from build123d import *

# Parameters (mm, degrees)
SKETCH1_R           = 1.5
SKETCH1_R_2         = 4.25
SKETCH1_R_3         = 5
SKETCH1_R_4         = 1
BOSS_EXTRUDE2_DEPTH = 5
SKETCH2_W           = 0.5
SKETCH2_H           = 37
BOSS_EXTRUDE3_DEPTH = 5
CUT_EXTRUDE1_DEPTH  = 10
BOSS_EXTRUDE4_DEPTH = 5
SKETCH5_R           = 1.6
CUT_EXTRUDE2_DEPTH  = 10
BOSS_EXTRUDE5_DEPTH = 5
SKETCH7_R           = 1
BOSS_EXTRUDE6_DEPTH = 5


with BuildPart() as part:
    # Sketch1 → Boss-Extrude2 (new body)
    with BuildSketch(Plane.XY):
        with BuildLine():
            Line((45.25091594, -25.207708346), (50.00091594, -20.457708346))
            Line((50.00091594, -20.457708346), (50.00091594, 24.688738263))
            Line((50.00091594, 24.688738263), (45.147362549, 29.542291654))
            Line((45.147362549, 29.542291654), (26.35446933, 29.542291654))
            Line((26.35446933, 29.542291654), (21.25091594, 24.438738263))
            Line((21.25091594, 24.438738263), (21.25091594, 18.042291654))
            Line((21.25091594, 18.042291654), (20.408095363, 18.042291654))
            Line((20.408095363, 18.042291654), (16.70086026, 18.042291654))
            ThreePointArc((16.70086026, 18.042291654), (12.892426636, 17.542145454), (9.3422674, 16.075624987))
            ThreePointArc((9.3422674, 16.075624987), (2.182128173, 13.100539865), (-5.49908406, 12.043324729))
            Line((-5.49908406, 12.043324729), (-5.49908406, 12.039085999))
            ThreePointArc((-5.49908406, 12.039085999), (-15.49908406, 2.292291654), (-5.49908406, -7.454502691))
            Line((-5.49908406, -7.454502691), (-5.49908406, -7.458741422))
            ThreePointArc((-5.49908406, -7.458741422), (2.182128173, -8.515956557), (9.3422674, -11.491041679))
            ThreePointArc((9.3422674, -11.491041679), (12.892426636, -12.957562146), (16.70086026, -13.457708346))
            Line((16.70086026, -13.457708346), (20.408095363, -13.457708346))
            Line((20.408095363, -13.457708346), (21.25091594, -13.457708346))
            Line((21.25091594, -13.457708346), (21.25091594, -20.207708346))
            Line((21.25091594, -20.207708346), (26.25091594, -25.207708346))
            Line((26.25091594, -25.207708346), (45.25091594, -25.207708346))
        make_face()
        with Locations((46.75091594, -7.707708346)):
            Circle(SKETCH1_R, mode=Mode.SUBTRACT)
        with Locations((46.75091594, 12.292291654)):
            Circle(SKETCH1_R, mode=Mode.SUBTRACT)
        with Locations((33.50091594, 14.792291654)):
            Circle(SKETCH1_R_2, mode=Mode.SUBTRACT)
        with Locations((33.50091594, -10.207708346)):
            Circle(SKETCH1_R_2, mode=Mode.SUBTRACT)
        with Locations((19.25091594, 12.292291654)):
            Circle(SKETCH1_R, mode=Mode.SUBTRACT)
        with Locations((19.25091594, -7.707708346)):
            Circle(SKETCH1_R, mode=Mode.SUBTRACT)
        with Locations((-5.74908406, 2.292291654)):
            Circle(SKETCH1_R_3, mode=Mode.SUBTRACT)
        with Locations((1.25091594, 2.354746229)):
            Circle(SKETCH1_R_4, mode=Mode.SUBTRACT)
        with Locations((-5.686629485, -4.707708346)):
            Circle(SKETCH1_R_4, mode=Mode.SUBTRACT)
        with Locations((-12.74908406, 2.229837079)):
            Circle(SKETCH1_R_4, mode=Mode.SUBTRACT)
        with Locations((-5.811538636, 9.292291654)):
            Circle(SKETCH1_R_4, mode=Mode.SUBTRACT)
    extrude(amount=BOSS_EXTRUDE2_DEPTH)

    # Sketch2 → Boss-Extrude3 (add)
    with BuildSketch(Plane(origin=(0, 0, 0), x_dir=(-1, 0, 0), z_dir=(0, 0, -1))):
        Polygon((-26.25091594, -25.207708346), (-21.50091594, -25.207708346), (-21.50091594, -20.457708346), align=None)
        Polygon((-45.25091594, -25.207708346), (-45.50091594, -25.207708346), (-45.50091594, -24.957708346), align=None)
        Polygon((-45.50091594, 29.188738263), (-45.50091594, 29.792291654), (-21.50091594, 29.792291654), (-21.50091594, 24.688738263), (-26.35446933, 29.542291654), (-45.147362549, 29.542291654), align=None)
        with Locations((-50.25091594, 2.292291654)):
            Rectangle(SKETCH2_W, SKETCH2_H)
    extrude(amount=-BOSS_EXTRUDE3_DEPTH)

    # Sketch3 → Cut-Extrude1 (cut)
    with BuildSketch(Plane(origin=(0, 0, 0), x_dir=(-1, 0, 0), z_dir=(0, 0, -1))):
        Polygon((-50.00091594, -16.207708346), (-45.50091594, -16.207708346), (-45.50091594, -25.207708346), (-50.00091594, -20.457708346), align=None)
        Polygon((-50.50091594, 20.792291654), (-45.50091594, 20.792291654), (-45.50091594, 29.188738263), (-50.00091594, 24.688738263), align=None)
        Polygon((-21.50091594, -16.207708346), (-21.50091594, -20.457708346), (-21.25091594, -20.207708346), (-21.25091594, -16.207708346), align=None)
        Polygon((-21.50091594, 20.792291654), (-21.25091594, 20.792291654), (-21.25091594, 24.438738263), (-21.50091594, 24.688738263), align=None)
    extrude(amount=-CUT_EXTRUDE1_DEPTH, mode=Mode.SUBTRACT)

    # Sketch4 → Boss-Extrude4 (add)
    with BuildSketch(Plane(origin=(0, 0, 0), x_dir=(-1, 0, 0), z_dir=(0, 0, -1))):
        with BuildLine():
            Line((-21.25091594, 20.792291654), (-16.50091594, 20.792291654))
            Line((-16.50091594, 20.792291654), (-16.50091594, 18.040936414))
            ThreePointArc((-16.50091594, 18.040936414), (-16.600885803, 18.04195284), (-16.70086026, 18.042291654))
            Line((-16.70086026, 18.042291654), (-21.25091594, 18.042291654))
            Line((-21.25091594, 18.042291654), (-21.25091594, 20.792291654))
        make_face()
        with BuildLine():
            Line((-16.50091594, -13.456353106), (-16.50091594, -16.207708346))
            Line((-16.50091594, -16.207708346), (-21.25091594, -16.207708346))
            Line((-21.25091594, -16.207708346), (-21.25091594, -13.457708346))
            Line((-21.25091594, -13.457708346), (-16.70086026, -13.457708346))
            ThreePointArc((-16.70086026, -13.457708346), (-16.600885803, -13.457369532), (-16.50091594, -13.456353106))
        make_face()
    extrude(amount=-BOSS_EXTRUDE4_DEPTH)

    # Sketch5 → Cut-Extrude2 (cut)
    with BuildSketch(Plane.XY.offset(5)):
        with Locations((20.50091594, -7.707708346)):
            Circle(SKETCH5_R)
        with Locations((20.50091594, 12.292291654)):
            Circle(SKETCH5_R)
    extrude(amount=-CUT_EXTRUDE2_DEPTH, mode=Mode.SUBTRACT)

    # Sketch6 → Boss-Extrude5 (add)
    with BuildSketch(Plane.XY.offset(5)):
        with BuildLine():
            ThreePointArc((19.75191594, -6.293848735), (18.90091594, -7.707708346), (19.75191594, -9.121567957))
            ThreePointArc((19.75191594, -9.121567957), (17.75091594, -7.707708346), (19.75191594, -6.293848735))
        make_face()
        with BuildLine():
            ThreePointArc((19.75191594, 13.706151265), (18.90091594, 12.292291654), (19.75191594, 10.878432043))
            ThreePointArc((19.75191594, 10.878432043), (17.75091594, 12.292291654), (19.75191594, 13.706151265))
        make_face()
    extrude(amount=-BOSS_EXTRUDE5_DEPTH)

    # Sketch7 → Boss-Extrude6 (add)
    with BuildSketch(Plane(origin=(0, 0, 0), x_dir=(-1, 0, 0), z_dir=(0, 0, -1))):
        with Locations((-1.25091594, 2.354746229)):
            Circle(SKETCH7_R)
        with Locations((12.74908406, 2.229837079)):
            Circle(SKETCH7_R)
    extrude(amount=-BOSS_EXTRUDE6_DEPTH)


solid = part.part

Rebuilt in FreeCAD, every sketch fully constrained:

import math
import FreeCAD as App
import Part
import Sketcher
from FreeCAD import Vector
Q = App.Units.Quantity


def add_polygon(sketch, points):
    """Adds a closed chain of lines whose ends are joined by coincident constraints."""
    first, n = sketch.GeometryCount, len(points)
    for a, b in zip(points, points[1:] + points[:1]):
        sketch.addGeometry(Part.LineSegment(App.Vector(*a, 0), App.Vector(*b, 0)), False)
    for i in range(n):
        sketch.addConstraint(Sketcher.Constraint("Coincident", first + i, 2, first + (i + 1) % n, 1))

doc = App.newDocument("Part")
body = doc.addObject("PartDesign::Body", "Body")

sketch1 = doc.addObject("Sketcher::SketchObject", "Sketch")
body.addObject(sketch1)
sketch1.AttachmentSupport = (doc.XY_Plane, [""])
sketch1.MapMode = "FlatFace"
sketch1.addGeometry(Part.LineSegment(Vector(45.250916, -25.207708, 0), Vector(50.000916, -20.457708, 0)), False)
sketch1.addGeometry(Part.LineSegment(Vector(50.000916, -20.457708, 0), Vector(50.000916, 24.688738, 0)), False)
sketch1.addGeometry(Part.LineSegment(Vector(50.000916, 24.688738, 0), Vector(45.147363, 29.542292, 0)), False)
sketch1.addGeometry(Part.LineSegment(Vector(45.147363, 29.542292, 0), Vector(26.354469, 29.542292, 0)), False)
sketch1.addGeometry(Part.LineSegment(Vector(26.354469, 29.542292, 0), Vector(21.250916, 24.438738, 0)), False)
sketch1.addGeometry(Part.LineSegment(Vector(21.250916, 24.438738, 0), Vector(21.250916, 18.042292, 0)), False)
sketch1.addGeometry(Part.LineSegment(Vector(21.250916, 18.042292, 0), Vector(16.70086, 18.042292, 0)), False)
sketch1.addGeometry(Part.ArcOfCircle(Part.Circle(Vector(16.70086, 3.292292, 0), Vector(0, 0, 1), 14.75), math.radians(90), math.radians(119.926435)), False)
sketch1.addGeometry(Part.ArcOfCircle(Part.Circle(Vector(-5.749084, 42.292292, 0), Vector(0, 0, 1), 30.25), math.radians(-89.526476), math.radians(-60.073565)), False)
sketch1.addGeometry(Part.LineSegment(Vector(-5.499084, 12.043325, 0), Vector(-5.499084, 12.039086, 0)), False)
sketch1.addGeometry(Part.ArcOfCircle(Part.Circle(Vector(-5.749084, 2.292292, 0), Vector(0, 0, 1), 9.75), math.radians(88.530716), math.radians(271.469284)), False)
sketch1.addGeometry(Part.LineSegment(Vector(-5.499084, -7.454503, 0), Vector(-5.499084, -7.458741, 0)), False)
sketch1.addGeometry(Part.ArcOfCircle(Part.Circle(Vector(-5.749084, -37.707708, 0), Vector(0, 0, 1), 30.25), math.radians(60.073565), math.radians(89.526476)), False)
sketch1.addGeometry(Part.ArcOfCircle(Part.Circle(Vector(16.70086, 1.292292, 0), Vector(0, 0, 1), 14.75), math.radians(-119.926435), math.radians(-90)), False)
sketch1.addGeometry(Part.LineSegment(Vector(16.70086, -13.457708, 0), Vector(21.250916, -13.457708, 0)), False)
sketch1.addGeometry(Part.LineSegment(Vector(21.250916, -13.457708, 0), Vector(21.250916, -20.207708, 0)), False)
sketch1.addGeometry(Part.LineSegment(Vector(21.250916, -20.207708, 0), Vector(26.250916, -25.207708, 0)), False)
sketch1.addGeometry(Part.LineSegment(Vector(26.250916, -25.207708, 0), Vector(45.250916, -25.207708, 0)), False)
sketch1.addGeometry(Part.Circle(Vector(-5.686629, -4.707708, 0), Vector(0, 0, 1), 1), False)
sketch1.addGeometry(Part.Circle(Vector(-12.749084, 2.229837, 0), Vector(0, 0, 1), 1), False)
sketch1.addGeometry(Part.Circle(Vector(19.250916, -7.707708, 0), Vector(0, 0, 1), 1.5), False)
sketch1.addGeometry(Part.Circle(Vector(33.500916, -10.207708, 0), Vector(0, 0, 1), 4.25), False)
sketch1.addGeometry(Part.Circle(Vector(46.750916, -7.707708, 0), Vector(0, 0, 1), 1.5), False)
sketch1.addGeometry(Part.Circle(Vector(-5.749084, 2.292292, 0), Vector(0, 0, 1), 5), False)
sketch1.addGeometry(Part.Circle(Vector(1.250916, 2.354746, 0), Vector(0, 0, 1), 1), False)
sketch1.addGeometry(Part.Circle(Vector(-5.811539, 9.292292, 0), Vector(0, 0, 1), 1), False)
sketch1.addGeometry(Part.Circle(Vector(19.250916, 12.292292, 0), Vector(0, 0, 1), 1.5), False)
sketch1.addGeometry(Part.Circle(Vector(33.500916, 14.792292, 0), Vector(0, 0, 1), 4.25), False)
sketch1.addGeometry(Part.Circle(Vector(46.750916, 12.292292, 0), Vector(0, 0, 1), 1.5), False)
sketch1.addConstraint(Sketcher.Constraint("Coincident", 0, 2, 1, 1))
sketch1.addConstraint(Sketcher.Constraint("Coincident", 1, 2, 2, 1))
sketch1.addConstraint(Sketcher.Constraint("Coincident", 2, 2, 3, 1))
sketch1.addConstraint(Sketcher.Constraint("Coincident", 3, 2, 4, 1))
sketch1.addConstraint(Sketcher.Constraint("Coincident", 4, 2, 5, 1))
sketch1.addConstraint(Sketcher.Constraint("Coincident", 5, 2, 6, 1))
sketch1.addConstraint(Sketcher.Constraint("Tangent", 6, 2, 7, 1))
sketch1.addConstraint(Sketcher.Constraint("Tangent", 7, 2, 8, 2))
sketch1.addConstraint(Sketcher.Constraint("Coincident", 8, 1, 9, 1))
sketch1.addConstraint(Sketcher.Constraint("Coincident", 9, 2, 10, 1))
sketch1.addConstraint(Sketcher.Constraint("Coincident", 10, 2, 11, 1))
sketch1.addConstraint(Sketcher.Constraint("Coincident", 11, 2, 12, 2))
sketch1.addConstraint(Sketcher.Constraint("Tangent", 12, 1, 13, 1))
sketch1.addConstraint(Sketcher.Constraint("Tangent", 13, 2, 14, 1))
sketch1.addConstraint(Sketcher.Constraint("Coincident", 14, 2, 15, 1))
sketch1.addConstraint(Sketcher.Constraint("Coincident", 15, 2, 16, 1))
sketch1.addConstraint(Sketcher.Constraint("Coincident", 16, 2, 17, 1))
sketch1.addConstraint(Sketcher.Constraint("Coincident", 17, 2, 0, 1))
sketch1.addConstraint(Sketcher.Constraint("Vertical", 1))
sketch1.addConstraint(Sketcher.Constraint("Horizontal", 3))
sketch1.addConstraint(Sketcher.Constraint("Vertical", 5))
sketch1.addConstraint(Sketcher.Constraint("Horizontal", 6))
sketch1.addConstraint(Sketcher.Constraint("Vertical", 9))
sketch1.addConstraint(Sketcher.Constraint("Vertical", 11))
sketch1.addConstraint(Sketcher.Constraint("Horizontal", 14))
sketch1.addConstraint(Sketcher.Constraint("Vertical", 15))
sketch1.addConstraint(Sketcher.Constraint("Horizontal", 17))
sketch1.addConstraint(Sketcher.Constraint("Coincident", 23, 3, 10, 3))
sketch1.addConstraint(Sketcher.Constraint("Equal", 8, 12))
sketch1.addConstraint(Sketcher.Constraint("Equal", 7, 13))
sketch1.addConstraint(Sketcher.Constraint("Equal", 18, 19))
sketch1.addConstraint(Sketcher.Constraint("Equal", 20, 22))
sketch1.addConstraint(Sketcher.Constraint("Equal", 19, 24))
sketch1.addConstraint(Sketcher.Constraint("Equal", 24, 25))
sketch1.addConstraint(Sketcher.Constraint("Equal", 22, 26))
sketch1.addConstraint(Sketcher.Constraint("Equal", 21, 27))
sketch1.addConstraint(Sketcher.Constraint("Equal", 26, 28))
sketch1.addConstraint(Sketcher.Constraint("Perpendicular", 0, 2))
sketch1.addConstraint(Sketcher.Constraint("Perpendicular", 2, 4))
sketch1.addConstraint(Sketcher.Constraint("Perpendicular", 4, 16))
sketch1.addConstraint(Sketcher.Constraint("Horizontal", 20, 3, 22, 3))
sketch1.addConstraint(Sketcher.Constraint("Horizontal", 26, 3, 28, 3))
sketch1.addConstraint(Sketcher.Constraint("Vertical", 8, 3, 10, 3))
sketch1.addConstraint(Sketcher.Constraint("Vertical", 10, 3, 12, 3))
sketch1.addConstraint(Sketcher.Constraint("Vertical", 7, 3, 13, 3))
sketch1.addConstraint(Sketcher.Constraint("Vertical", 20, 3, 26, 3))
sketch1.addConstraint(Sketcher.Constraint("Vertical", 21, 3, 27, 3))
sketch1.addConstraint(Sketcher.Constraint("Vertical", 22, 3, 28, 3))
sketch1.addConstraint(Sketcher.Constraint("Vertical", 9, 2, 10, 2))
sketch1.addConstraint(Sketcher.Constraint("Vertical", 5, 2, 14, 2))
sketch1.addConstraint(Sketcher.Constraint("Equal", 9, 11))
sketch1.addConstraint(Sketcher.Constraint("Diameter", 18, 2.0))
sketch1.addConstraint(Sketcher.Constraint("Diameter", 20, 3.0))
sketch1.addConstraint(Sketcher.Constraint("Diameter", 23, 10.0))
sketch1.addConstraint(Sketcher.Constraint("Diameter", 21, 8.5))
sketch1.addConstraint(Sketcher.Constraint("DistanceX", 17, 1, 17, 2, 19.0))
sketch1.addConstraint(Sketcher.Constraint("Angle", 0, Q("45 deg")))
sketch1.addConstraint(Sketcher.Constraint("Radius", 7, 14.75))
sketch1.addConstraint(Sketcher.Constraint("Radius", 8, 30.25))
sketch1.addConstraint(Sketcher.Constraint("Radius", 10, 9.75))
sketch1.addConstraint(Sketcher.Constraint("DistanceY", 7, 3, 8, 3, 39.0))
sketch1.addConstraint(Sketcher.Constraint("DistanceY", 10, 3, 7, 3, 1.0))
sketch1.addConstraint(Sketcher.Constraint("DistanceY", 18, 3, 10, 3, 7.0))
sketch1.addConstraint(Sketcher.Constraint("DistanceX", 19, 3, 10, 3, 7.0))
sketch1.addConstraint(Sketcher.Constraint("DistanceY", 20, 3, 13, 3, 9.0))
sketch1.addConstraint(Sketcher.Constraint("DistanceX", 10, 3, 20, 3, 25.0))
sketch1.addConstraint(Sketcher.Constraint("DistanceX", 10, 3, 24, 3, 7.0))
sketch1.addConstraint(Sketcher.Constraint("DistanceY", 10, 3, 25, 3, 7.0))
sketch1.addConstraint(Sketcher.Constraint("DistanceY", 7, 3, 26, 3, 9.0))
sketch1.addConstraint(Sketcher.Constraint("DistanceY", 21, 3, 27, 3, 25.0))
sketch1.addConstraint(Sketcher.Constraint("DistanceX", 26, 3, 4, 2, 2.0))
sketch1.addConstraint(Sketcher.Constraint("DistanceY", 15, 2, 21, 3, 10.0))
sketch1.addConstraint(Sketcher.Constraint("DistanceX", 15, 2, 16, 2, 5.0))
sketch1.addConstraint(Sketcher.Constraint("DistanceY", 15, 2, 15, 1, 6.75))
sketch1.addConstraint(Sketcher.Constraint("DistanceX", 20, 3, 22, 3, 27.5))
sketch1.addConstraint(Sketcher.Constraint("DistanceX", 21, 3, 0, 2, 16.5))
sketch1.addConstraint(Sketcher.Constraint("DistanceY", 5, 2, 3, 2, 11.5))
sketch1.addConstraint(Sketcher.Constraint("DistanceX", 20, 3, 21, 3, 14.25))
sketch1.addConstraint(Sketcher.Constraint("DistanceX", 10, 3, 8, 1, 0.25))
sketch1.addConstraint(Sketcher.Constraint("Distance", 2, 6.863961))
sketch1.addConstraint(Sketcher.Constraint("DistanceX", 3, 2, 3, 1, 18.792893))
sketch1.addConstraint(Sketcher.Constraint("DistanceX", -1, 1, 7, 3, 16.70086))
sketch1.addConstraint(Sketcher.Constraint("DistanceY", -1, 1, 7, 3, 3.292292))
sketch1.addConstraint(Sketcher.Constraint("DistanceX", 18, 3, -1, 1, 5.686629))
sketch1.addConstraint(Sketcher.Constraint("DistanceX", 25, 3, -1, 1, 5.811539))
sketch1.addConstraint(Sketcher.Constraint("DistanceY", 19, 3, 24, 3, 0.124909))
sketch1.addConstraint(Sketcher.Constraint("DistanceY", 24, 3, 8, 1, 9.688579))
pad1 = doc.addObject("PartDesign::Pad", "Pad")
body.addObject(pad1)
pad1.Profile = sketch1
pad1.Length = 5

sketch2 = doc.addObject("Sketcher::SketchObject", "Sketch001")
body.addObject(sketch2)
sketch2.AttachmentSupport = (doc.XY_Plane, [""])
sketch2.MapMode = "FlatFace"
add_polygon(sketch2, [(26.250916, -25.207708), (21.500916, -25.207708), (21.500916, -20.457708)])
add_polygon(sketch2, [(45.500916, -25.207708), (45.250916, -25.207708), (45.500916, -24.957708)])
add_polygon(sketch2, [(45.500916, 29.792292), (45.500916, 29.188738), (45.147363, 29.542292), (26.354469, 29.542292), (21.500916, 24.688738), (21.500916, 29.792292)])
add_polygon(sketch2, [(50.500916, 20.792292), (50.500916, -16.207708), (50.000916, -16.207708), (50.000916, 20.792292)])
sketch2.addConstraint(Sketcher.Constraint("Horizontal", 0))
sketch2.addConstraint(Sketcher.Constraint("Vertical", 1))
sketch2.addConstraint(Sketcher.Constraint("Horizontal", 3))
sketch2.addConstraint(Sketcher.Constraint("Vertical", 5))
sketch2.addConstraint(Sketcher.Constraint("Vertical", 6))
sketch2.addConstraint(Sketcher.Constraint("Horizontal", 8))
sketch2.addConstraint(Sketcher.Constraint("Vertical", 10))
sketch2.addConstraint(Sketcher.Constraint("Horizontal", 11))
sketch2.addConstraint(Sketcher.Constraint("Vertical", 12))
sketch2.addConstraint(Sketcher.Constraint("Horizontal", 13))
sketch2.addConstraint(Sketcher.Constraint("Vertical", 14))
sketch2.addConstraint(Sketcher.Constraint("Horizontal", 15))
sketch2.addConstraint(Sketcher.Constraint("Perpendicular", 2, 4))
sketch2.addConstraint(Sketcher.Constraint("Perpendicular", 4, 7))
sketch2.addConstraint(Sketcher.Constraint("Perpendicular", 7, 9))
sketch2.addConstraint(Sketcher.Constraint("Horizontal", 2, 2, 3, 2))
sketch2.addConstraint(Sketcher.Constraint("Vertical", 5, 2, 6, 2))
sketch2.addConstraint(Sketcher.Constraint("Vertical", 1, 2, 9, 2))
sketch2.addConstraint(Sketcher.Constraint("Equal", 0, 1))
sketch2.addConstraint(Sketcher.Constraint("DistanceX", 11, 1, 11, 2, 24.0))
sketch2.addConstraint(Sketcher.Constraint("DistanceY", 12, 2, 12, 1, 37.0))
sketch2.addConstraint(Sketcher.Constraint("DistanceX", 13, 2, 13, 1, 0.5))
sketch2.addConstraint(Sketcher.Constraint("DistanceX", 2, 2, 3, 2, 19.0))
sketch2.addConstraint(Sketcher.Constraint("DistanceY", 1, 2, 7, 2, 50.0))
sketch2.addConstraint(Sketcher.Constraint("DistanceX", 4, 2, 12, 2, 5.0))
sketch2.addConstraint(Sketcher.Constraint("DistanceY", 5, 2, 12, 2, 9.0))
sketch2.addConstraint(Sketcher.Constraint("DistanceY", 14, 2, 11, 2, 9.0))
sketch2.addConstraint(Sketcher.Constraint("Distance", 7, 0.5))
sketch2.addConstraint(Sketcher.Constraint("DistanceX", 0, 2, 0, 1, 4.75))
sketch2.addConstraint(Sketcher.Constraint("DistanceY", 9, 2, 6, 2, 4.5))
sketch2.addConstraint(Sketcher.Constraint("DistanceY", 0, 2, -1, 1, 25.207708))
sketch2.addConstraint(Sketcher.Constraint("DistanceX", -1, 1, 8, 2, 26.354469))
pad2 = doc.addObject("PartDesign::Pad", "Pad001")
body.addObject(pad2)
pad2.Profile = sketch2
pad2.Length = 5

sketch3 = doc.addObject("Sketcher::SketchObject", "Sketch002")
body.addObject(sketch3)
sketch3.AttachmentSupport = (doc.XY_Plane, [""])
sketch3.MapMode = "FlatFace"
add_polygon(sketch3, [(45.500916, -16.207708), (50.000916, -16.207708), (50.000916, -20.457708), (45.500916, -25.207708)])
add_polygon(sketch3, [(50.500916, 20.792292), (45.500916, 20.792292), (45.500916, 29.188738), (50.000916, 24.688738)])
add_polygon(sketch3, [(21.500916, -16.207708), (21.500916, -20.457708), (21.250916, -20.207708), (21.250916, -16.207708)])
add_polygon(sketch3, [(21.500916, 20.792292), (21.250916, 20.792292), (21.250916, 24.438738), (21.500916, 24.688738)])
sketch3.addConstraint(Sketcher.Constraint("Horizontal", 0))
sketch3.addConstraint(Sketcher.Constraint("Vertical", 1))
sketch3.addConstraint(Sketcher.Constraint("Vertical", 3))
sketch3.addConstraint(Sketcher.Constraint("Horizontal", 4))
sketch3.addConstraint(Sketcher.Constraint("Vertical", 5))
sketch3.addConstraint(Sketcher.Constraint("Vertical", 8))
sketch3.addConstraint(Sketcher.Constraint("Vertical", 10))
sketch3.addConstraint(Sketcher.Constraint("Horizontal", 11))
sketch3.addConstraint(Sketcher.Constraint("Horizontal", 12))
sketch3.addConstraint(Sketcher.Constraint("Vertical", 13))
sketch3.addConstraint(Sketcher.Constraint("Vertical", 15))
sketch3.addConstraint(Sketcher.Constraint("Parallel", 6, 9))
sketch3.addConstraint(Sketcher.Constraint("Perpendicular", 9, 14))
sketch3.addConstraint(Sketcher.Constraint("Horizontal", 1, 2, 8, 2))
sketch3.addConstraint(Sketcher.Constraint("Horizontal", 3, 2, 10, 2))
sketch3.addConstraint(Sketcher.Constraint("Horizontal", 7, 2, 12, 2))
sketch3.addConstraint(Sketcher.Constraint("Horizontal", 6, 2, 14, 2))
sketch3.addConstraint(Sketcher.Constraint("Vertical", 3, 2, 4, 2))
sketch3.addConstraint(Sketcher.Constraint("Vertical", 1, 2, 6, 2))
sketch3.addConstraint(Sketcher.Constraint("Vertical", 10, 2, 12, 2))
sketch3.addConstraint(Sketcher.Constraint("Vertical", 11, 2, 14, 2))
sketch3.addConstraint(Sketcher.Constraint("Equal", 9, 14))
sketch3.addConstraint(Sketcher.Constraint("DistanceX", 4, 2, 4, 1, 5.0))
sketch3.addConstraint(Sketcher.Constraint("DistanceY", 3, 1, 3, 2, 9.0))
sketch3.addConstraint(Sketcher.Constraint("DistanceY", 10, 1, 10, 2, 4.0))
sketch3.addConstraint(Sketcher.Constraint("DistanceX", 0, 1, 0, 2, 4.5))
sketch3.addConstraint(Sketcher.Constraint("DistanceY", 3, 2, 4, 2, 37.0))
sketch3.addConstraint(Sketcher.Constraint("DistanceX", 8, 2, 3, 2, 24.0))
sketch3.addConstraint(Sketcher.Constraint("DistanceX", 11, 1, 11, 2, 0.25))
sketch3.addConstraint(Sketcher.Constraint("DistanceY", 5, 1, 5, 2, 8.396447))
sketch3.addConstraint(Sketcher.Constraint("DistanceY", 0, 2, -1, 1, 16.207708))
sketch3.addConstraint(Sketcher.Constraint("DistanceX", -1, 1, 0, 2, 50.000916))
pocket1 = doc.addObject("PartDesign::Pocket", "Pocket")
body.addObject(pocket1)
pocket1.Profile = sketch3
pocket1.Length = 10
pocket1.Reversed = True

sketch4 = doc.addObject("Sketcher::SketchObject", "Sketch003")
body.addObject(sketch4)
sketch4.AttachmentSupport = (doc.XY_Plane, [""])
sketch4.MapMode = "FlatFace"
sketch4.addGeometry(Part.LineSegment(Vector(16.500916, 20.792292, 0), Vector(21.250916, 20.792292, 0)), False)
sketch4.addGeometry(Part.LineSegment(Vector(21.250916, 20.792292, 0), Vector(21.250916, 18.042292, 0)), False)
sketch4.addGeometry(Part.LineSegment(Vector(21.250916, 18.042292, 0), Vector(16.70086, 18.042292, 0)), False)
sketch4.addGeometry(Part.ArcOfCircle(Part.Circle(Vector(16.70086, 3.292292, 0), Vector(0, 0, 1), 14.75), math.radians(90), math.radians(90.7767)), False)
sketch4.addGeometry(Part.LineSegment(Vector(16.500916, 18.040936, 0), Vector(16.500916, 20.792292, 0)), False)
sketch4.addGeometry(Part.LineSegment(Vector(16.500916, -16.207708, 0), Vector(16.500916, -13.456353, 0)), False)
sketch4.addGeometry(Part.ArcOfCircle(Part.Circle(Vector(16.70086, 1.292292, 0), Vector(0, 0, 1), 14.75), math.radians(-90.7767), math.radians(-90)), False)
sketch4.addGeometry(Part.LineSegment(Vector(16.70086, -13.457708, 0), Vector(21.250916, -13.457708, 0)), False)
sketch4.addGeometry(Part.LineSegment(Vector(21.250916, -13.457708, 0), Vector(21.250916, -16.207708, 0)), False)
sketch4.addGeometry(Part.LineSegment(Vector(21.250916, -16.207708, 0), Vector(16.500916, -16.207708, 0)), False)
sketch4.addConstraint(Sketcher.Constraint("Coincident", 0, 2, 1, 1))
sketch4.addConstraint(Sketcher.Constraint("Coincident", 1, 2, 2, 1))
sketch4.addConstraint(Sketcher.Constraint("Tangent", 2, 2, 3, 1))
sketch4.addConstraint(Sketcher.Constraint("Coincident", 3, 2, 4, 1))
sketch4.addConstraint(Sketcher.Constraint("Coincident", 4, 2, 0, 1))
sketch4.addConstraint(Sketcher.Constraint("Coincident", 5, 2, 6, 1))
sketch4.addConstraint(Sketcher.Constraint("Tangent", 6, 2, 7, 1))
sketch4.addConstraint(Sketcher.Constraint("Coincident", 7, 2, 8, 1))
sketch4.addConstraint(Sketcher.Constraint("Coincident", 8, 2, 9, 1))
sketch4.addConstraint(Sketcher.Constraint("Coincident", 9, 2, 5, 1))
sketch4.addConstraint(Sketcher.Constraint("Horizontal", 0))
sketch4.addConstraint(Sketcher.Constraint("Vertical", 1))
sketch4.addConstraint(Sketcher.Constraint("Horizontal", 2))
sketch4.addConstraint(Sketcher.Constraint("Vertical", 4))
sketch4.addConstraint(Sketcher.Constraint("Vertical", 5))
sketch4.addConstraint(Sketcher.Constraint("Horizontal", 7))
sketch4.addConstraint(Sketcher.Constraint("Vertical", 8))
sketch4.addConstraint(Sketcher.Constraint("Horizontal", 9))
sketch4.addConstraint(Sketcher.Constraint("Equal", 3, 6))
sketch4.addConstraint(Sketcher.Constraint("Vertical", 3, 3, 6, 3))
sketch4.addConstraint(Sketcher.Constraint("Vertical", 4, 2, 5, 2))
sketch4.addConstraint(Sketcher.Constraint("Vertical", 1, 2, 7, 2))
sketch4.addConstraint(Sketcher.Constraint("Equal", 4, 5))
sketch4.addConstraint(Sketcher.Constraint("Radius", 3, 14.75))
sketch4.addConstraint(Sketcher.Constraint("DistanceY", 6, 3, 3, 3, 2.0))
sketch4.addConstraint(Sketcher.Constraint("DistanceX", 0, 1, 0, 2, 4.75))
sketch4.addConstraint(Sketcher.Constraint("DistanceY", 1, 2, 1, 1, 2.75))
sketch4.addConstraint(Sketcher.Constraint("DistanceX", 2, 2, 2, 1, 4.550056))
sketch4.addConstraint(Sketcher.Constraint("DistanceX", -1, 1, 3, 3, 16.70086))
sketch4.addConstraint(Sketcher.Constraint("DistanceY", -1, 1, 3, 3, 3.292292))
pad3 = doc.addObject("PartDesign::Pad", "Pad002")
body.addObject(pad3)
pad3.Profile = sketch4
pad3.Length = 5

sketch5 = doc.addObject("Sketcher::SketchObject", "Sketch004")
body.addObject(sketch5)
sketch5.AttachmentSupport = (doc.XY_Plane, [""])
sketch5.MapMode = "FlatFace"
sketch5.AttachmentOffset = App.Placement(Vector(0, 0, 5), App.Rotation())
sketch5.addGeometry(Part.Circle(Vector(20.500916, -7.707708, 0), Vector(0, 0, 1), 1.6), False)
sketch5.addGeometry(Part.Circle(Vector(20.500916, 12.292292, 0), Vector(0, 0, 1), 1.6), False)
sketch5.addConstraint(Sketcher.Constraint("Equal", 0, 1))
sketch5.addConstraint(Sketcher.Constraint("Vertical", 0, 3, 1, 3))
sketch5.addConstraint(Sketcher.Constraint("Diameter", 0, 3.2))
sketch5.addConstraint(Sketcher.Constraint("DistanceY", 0, 3, 1, 3, 20.0))
sketch5.addConstraint(Sketcher.Constraint("DistanceY", 0, 3, -1, 1, 7.707708))
sketch5.addConstraint(Sketcher.Constraint("DistanceX", -1, 1, 0, 3, 20.500916))
pocket2 = doc.addObject("PartDesign::Pocket", "Pocket001")
body.addObject(pocket2)
pocket2.Profile = sketch5
pocket2.Length = 10

sketch6 = doc.addObject("Sketcher::SketchObject", "Sketch005")
body.addObject(sketch6)
sketch6.AttachmentSupport = (doc.XY_Plane, [""])
sketch6.MapMode = "FlatFace"
sketch6.AttachmentOffset = App.Placement(Vector(0, 0, 5), App.Rotation())
sketch6.addGeometry(Part.ArcOfCircle(Part.Circle(Vector(20.500916, -7.707708, 0), Vector(0, 0, 1), 1.6), math.radians(117.912655), math.radians(242.087345)), False)
sketch6.addGeometry(Part.ArcOfCircle(Part.Circle(Vector(19.250916, -7.707708, 0), Vector(0, 0, 1), 1.5), math.radians(70.48826), math.radians(289.51174)), False)
sketch6.addGeometry(Part.ArcOfCircle(Part.Circle(Vector(20.500916, 12.292292, 0), Vector(0, 0, 1), 1.6), math.radians(117.912655), math.radians(242.087345)), False)
sketch6.addGeometry(Part.ArcOfCircle(Part.Circle(Vector(19.250916, 12.292292, 0), Vector(0, 0, 1), 1.5), math.radians(70.48826), math.radians(289.51174)), False)
sketch6.addConstraint(Sketcher.Constraint("Coincident", 0, 1, 1, 1))
sketch6.addConstraint(Sketcher.Constraint("Coincident", 1, 2, 0, 2))
sketch6.addConstraint(Sketcher.Constraint("Coincident", 2, 1, 3, 1))
sketch6.addConstraint(Sketcher.Constraint("Coincident", 3, 2, 2, 2))
sketch6.addConstraint(Sketcher.Constraint("Equal", 0, 2))
sketch6.addConstraint(Sketcher.Constraint("Equal", 1, 3))
sketch6.addConstraint(Sketcher.Constraint("Horizontal", 0, 3, 1, 3))
sketch6.addConstraint(Sketcher.Constraint("Horizontal", 2, 3, 3, 3))
sketch6.addConstraint(Sketcher.Constraint("Vertical", 0, 3, 2, 3))
sketch6.addConstraint(Sketcher.Constraint("Vertical", 1, 3, 3, 3))
sketch6.addConstraint(Sketcher.Constraint("Radius", 0, 1.6))
sketch6.addConstraint(Sketcher.Constraint("Radius", 1, 1.5))
sketch6.addConstraint(Sketcher.Constraint("DistanceY", 0, 3, 2, 3, 20.0))
sketch6.addConstraint(Sketcher.Constraint("DistanceX", 1, 3, 0, 3, 1.25))
sketch6.addConstraint(Sketcher.Constraint("DistanceY", 0, 3, -1, 1, 7.707708))
sketch6.addConstraint(Sketcher.Constraint("DistanceX", -1, 1, 0, 3, 20.500916))
pad4 = doc.addObject("PartDesign::Pad", "Pad003")
body.addObject(pad4)
pad4.Profile = sketch6
pad4.Length = 5
pad4.Reversed = True

sketch7 = doc.addObject("Sketcher::SketchObject", "Sketch006")
body.addObject(sketch7)
sketch7.AttachmentSupport = (doc.XY_Plane, [""])
sketch7.MapMode = "FlatFace"
sketch7.addGeometry(Part.Circle(Vector(1.250916, 2.354746, 0), Vector(0, 0, 1), 1), False)
sketch7.addGeometry(Part.Circle(Vector(-12.749084, 2.229837, 0), Vector(0, 0, 1), 1), False)
sketch7.addConstraint(Sketcher.Constraint("Equal", 0, 1))
sketch7.addConstraint(Sketcher.Constraint("Diameter", 0, 2.0))
sketch7.addConstraint(Sketcher.Constraint("DistanceX", 1, 3, 0, 3, 14.0))
sketch7.addConstraint(Sketcher.Constraint("DistanceY", 1, 3, 0, 3, 0.124909))
sketch7.addConstraint(Sketcher.Constraint("DistanceX", -1, 1, 0, 3, 1.250916))
sketch7.addConstraint(Sketcher.Constraint("DistanceY", -1, 1, 0, 3, 2.354746))
pad5 = doc.addObject("PartDesign::Pad", "Pad004")
body.addObject(pad5)
pad5.Profile = sketch7
pad5.Length = 5

doc.recompute()
